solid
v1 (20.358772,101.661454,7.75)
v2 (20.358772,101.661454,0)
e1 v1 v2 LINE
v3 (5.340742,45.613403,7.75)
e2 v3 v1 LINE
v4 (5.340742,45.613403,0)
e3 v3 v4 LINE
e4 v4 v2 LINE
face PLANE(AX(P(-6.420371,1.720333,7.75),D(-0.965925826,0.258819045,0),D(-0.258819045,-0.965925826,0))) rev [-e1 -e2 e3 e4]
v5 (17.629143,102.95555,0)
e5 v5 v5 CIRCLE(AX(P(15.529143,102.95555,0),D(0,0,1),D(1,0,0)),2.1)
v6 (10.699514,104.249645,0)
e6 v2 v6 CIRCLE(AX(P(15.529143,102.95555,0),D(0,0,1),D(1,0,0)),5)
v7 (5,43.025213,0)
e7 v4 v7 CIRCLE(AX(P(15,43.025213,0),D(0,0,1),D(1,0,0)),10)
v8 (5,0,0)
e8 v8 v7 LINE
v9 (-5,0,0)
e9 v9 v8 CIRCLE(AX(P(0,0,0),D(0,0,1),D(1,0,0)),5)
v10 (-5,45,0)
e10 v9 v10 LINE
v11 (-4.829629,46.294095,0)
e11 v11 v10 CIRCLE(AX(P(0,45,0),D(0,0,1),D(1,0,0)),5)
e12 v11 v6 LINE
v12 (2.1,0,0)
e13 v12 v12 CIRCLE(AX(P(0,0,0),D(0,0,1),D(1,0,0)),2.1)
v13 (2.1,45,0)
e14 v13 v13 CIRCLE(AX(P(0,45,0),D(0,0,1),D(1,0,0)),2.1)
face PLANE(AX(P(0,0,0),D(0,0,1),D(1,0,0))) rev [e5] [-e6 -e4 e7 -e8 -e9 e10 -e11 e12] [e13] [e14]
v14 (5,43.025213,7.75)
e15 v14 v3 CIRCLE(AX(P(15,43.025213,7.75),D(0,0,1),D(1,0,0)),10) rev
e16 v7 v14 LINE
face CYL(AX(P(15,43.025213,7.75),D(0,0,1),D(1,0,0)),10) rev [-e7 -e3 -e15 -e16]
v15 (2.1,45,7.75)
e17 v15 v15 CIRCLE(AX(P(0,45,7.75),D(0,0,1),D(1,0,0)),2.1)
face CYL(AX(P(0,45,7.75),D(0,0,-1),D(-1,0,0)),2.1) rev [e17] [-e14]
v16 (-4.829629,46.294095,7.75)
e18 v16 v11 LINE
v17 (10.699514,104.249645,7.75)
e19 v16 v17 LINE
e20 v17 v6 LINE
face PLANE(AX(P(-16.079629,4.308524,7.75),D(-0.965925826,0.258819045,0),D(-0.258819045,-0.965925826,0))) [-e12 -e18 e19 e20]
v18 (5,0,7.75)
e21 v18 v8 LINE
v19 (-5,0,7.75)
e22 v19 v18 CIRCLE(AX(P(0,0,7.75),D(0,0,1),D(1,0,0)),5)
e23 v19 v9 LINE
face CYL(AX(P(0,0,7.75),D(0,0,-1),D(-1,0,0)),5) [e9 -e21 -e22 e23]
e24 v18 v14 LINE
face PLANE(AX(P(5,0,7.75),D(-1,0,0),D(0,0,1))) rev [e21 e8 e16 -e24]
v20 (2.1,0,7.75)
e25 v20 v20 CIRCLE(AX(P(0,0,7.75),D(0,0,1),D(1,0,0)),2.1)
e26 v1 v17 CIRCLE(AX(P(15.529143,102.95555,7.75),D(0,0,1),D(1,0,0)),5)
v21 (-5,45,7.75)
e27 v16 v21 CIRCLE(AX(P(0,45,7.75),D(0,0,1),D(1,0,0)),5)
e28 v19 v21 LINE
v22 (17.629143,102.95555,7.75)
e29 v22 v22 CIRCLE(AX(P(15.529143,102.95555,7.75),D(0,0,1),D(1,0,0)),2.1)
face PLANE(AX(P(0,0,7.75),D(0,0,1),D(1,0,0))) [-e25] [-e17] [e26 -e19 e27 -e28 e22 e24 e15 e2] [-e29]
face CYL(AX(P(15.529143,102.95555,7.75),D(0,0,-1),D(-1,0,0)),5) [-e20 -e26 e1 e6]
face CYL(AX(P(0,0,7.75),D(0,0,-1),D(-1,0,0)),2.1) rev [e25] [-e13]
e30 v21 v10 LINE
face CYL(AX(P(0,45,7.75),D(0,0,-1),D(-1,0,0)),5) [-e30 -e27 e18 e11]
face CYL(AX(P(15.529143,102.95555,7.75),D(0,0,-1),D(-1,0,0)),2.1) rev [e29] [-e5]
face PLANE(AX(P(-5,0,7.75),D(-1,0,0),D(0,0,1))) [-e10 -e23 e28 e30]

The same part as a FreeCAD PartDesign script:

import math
import FreeCAD as App
import Part
import Sketcher

V = App.Vector
Q = App.Units.Quantity


def edges_at(feature, points):
    """Names of the edges that pass closest to the given points."""
    edges = feature.Shape.Edges
    near = lambda p: min(range(len(edges)), key=lambda i: edges[i].distToShape(Part.Vertex(*p))[0])
    return sorted({f"Edge{near(p) + 1}" for p in points})

doc = App.newDocument("Part")
body = doc.addObject("PartDesign::Body", "Body")

sketch1 = doc.addObject("Sketcher::SketchObject", "Sketch")
body.addObject(sketch1)
sketch1.AttachmentSupport = (doc.XY_Plane, [""])
sketch1.MapMode = "FlatFace"
sketch1.addGeometry(Part.LineSegment(V(10.7, 104.2, 0), V(-4.8, 46.3, 0)), False)
sketch1.addGeometry(Part.ArcOfCircle(Part.Circle(V(0, 45, 0), V(0, 0, 1), 5), math.radians(165), math.radians(180)), False)
sketch1.addGeometry(Part.LineSegment(V(-5, 45, 0), V(-5, 0, 0)), False)
sketch1.addGeometry(Part.ArcOfCircle(Part.Circle(V(0, 0, 0), V(0, 0, 1), 5), math.radians(180), math.radians(360)), False)
sketch1.addGeometry(Part.LineSegment(V(5, 0, 0), V(5, 44.3, 0)), False)
sketch1.addGeometry(Part.LineSegment(V(5, 44.3, 0), V(20.4, 101.7, 0)), False)
sketch1.addGeometry(Part.ArcOfCircle(Part.Circle(V(15.5, 103, 0), V(0, 0, 1), 5), math.radians(-15), math.radians(165)), False)
sketch1.addGeometry(Part.Circle(V(15.5, 103, 0), V(0, 0, 1), 2.1), False)
sketch1.addGeometry(Part.Circle(V(0, 45, 0), V(0, 0, 1), 2.1), False)
sketch1.addGeometry(Part.Circle(V(0, 0, 0), V(0, 0, 1), 2.1), False)
sketch1.addConstraint(Sketcher.Constraint("Tangent", 0, 2, 1, 1))
sketch1.addConstraint(Sketcher.Constraint("Tangent", 1, 2, 2, 1))
sketch1.addConstraint(Sketcher.Constraint("Tangent", 2, 2, 3, 1))
sketch1.addConstraint(Sketcher.Constraint("Tangent", 3, 2, 4, 1))
sketch1.addConstraint(Sketcher.Constraint("Coincident", 4, 2, 5, 1))
sketch1.addConstraint(Sketcher.Constraint("Tangent", 5, 2, 6, 1))
sketch1.addConstraint(Sketcher.Constraint("Tangent", 6, 2, 0, 1))
sketch1.addConstraint(Sketcher.Constraint("Vertical", 2))
sketch1.addConstraint(Sketcher.Constraint("Vertical", 4))
sketch1.addConstraint(Sketcher.Constraint("Coincident", 3, 3, -1, 1))
sketch1.addConstraint(Sketcher.Constraint("Coincident", 9, 3, -1, 1))
sketch1.addConstraint(Sketcher.Constraint("Coincident", 7, 3, 6, 3))
sketch1.addConstraint(Sketcher.Constraint("Coincident", 8, 3, 1, 3))
sketch1.addConstraint(Sketcher.Constraint("Equal", 1, 3))
sketch1.addConstraint(Sketcher.Constraint("Equal", 3, 6))
sketch1.addConstraint(Sketcher.Constraint("Equal", 7, 8))
sketch1.addConstraint(Sketcher.Constraint("Equal", 8, 9))
sketch1.addConstraint(Sketcher.Constraint("Parallel", 0, 5))
sketch1.addConstraint(Sketcher.Constraint("Radius", 1, Q("5 mm")))
sketch1.addConstraint(Sketcher.Constraint("Diameter", 7, Q("4.2 mm")))
sketch1.addConstraint(Sketcher.Constraint("DistanceY", 2, 2, 2, 1, Q("45 mm")))
sketch1.addConstraint(Sketcher.Constraint("Angle", 0, Q("-105 deg")))
sketch1.addConstraint(Sketcher.Constraint("Distance", 0, Q("60 mm")))
pad1 = doc.addObject("PartDesign::Pad", "Pad")
body.addObject(pad1)
pad1.Profile = sketch1
pad1.Length = 7.75
doc.recompute()

fillet = doc.addObject("PartDesign::Fillet", "Fillet")
body.addObject(fillet)
fillet.Base = (pad1, edges_at(pad1, [(5, 44.342, 3.875)]))
fillet.Radius = 10

doc.recompute()
